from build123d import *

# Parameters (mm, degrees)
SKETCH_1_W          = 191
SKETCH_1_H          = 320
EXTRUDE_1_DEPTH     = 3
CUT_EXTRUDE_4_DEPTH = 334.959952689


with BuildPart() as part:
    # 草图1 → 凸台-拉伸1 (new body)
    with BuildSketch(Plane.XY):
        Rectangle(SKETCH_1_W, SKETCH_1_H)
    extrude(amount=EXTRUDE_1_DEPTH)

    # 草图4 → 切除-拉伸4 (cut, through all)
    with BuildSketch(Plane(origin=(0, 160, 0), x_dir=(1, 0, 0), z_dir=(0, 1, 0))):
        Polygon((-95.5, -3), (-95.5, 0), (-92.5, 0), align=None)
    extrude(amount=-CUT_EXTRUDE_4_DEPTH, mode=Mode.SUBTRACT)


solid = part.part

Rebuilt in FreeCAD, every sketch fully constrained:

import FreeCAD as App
import Part
import Sketcher
from FreeCAD import Vector
Q = App.Units.Quantity

doc = App.newDocument("Part")
body = doc.addObject("PartDesign::Body", "Body")

# Sketch on XY plane
sketch1 = doc.addObject("Sketcher::SketchObject", "Sketch")
body.addObject(sketch1)
sketch1.AttachmentSupport = (doc.XY_Plane, [""])
sketch1.MapMode = "FlatFace"
sketch1.addGeometry(Part.LineSegment(Vector(-96, 160, 0), Vector(-96, -160, 0)), False)
sketch1.addGeometry(Part.LineSegment(Vector(-96, -160, 0), Vector(96, -160, 0)), False)
sketch1.addGeometry(Part.LineSegment(Vector(96, -160, 0), Vector(96, 160, 0)), False)
sketch1.addGeometry(Part.LineSegment(Vector(96, 160, 0), Vector(-96, 160, 0)), False)
sketch1.addConstraint(Sketcher.Constraint("Coincident", 0, 2, 1, 1))
sketch1.addConstraint(Sketcher.Constraint("Coincident", 1, 2, 2, 1))
sketch1.addConstraint(Sketcher.Constraint("Coincident", 2, 2, 3, 1))
sketch1.addConstraint(Sketcher.Constraint("Coincident", 3, 2, 0, 1))
sketch1.addConstraint(Sketcher.Constraint("Vertical", 0))
sketch1.addConstraint(Sketcher.Constraint("Horizontal", 1))
sketch1.addConstraint(Sketcher.Constraint("Vertical", 2))
sketch1.addConstraint(Sketcher.Constraint("Horizontal", 3))
sketch1.addConstraint(Sketcher.Constraint("Symmetric", 0, 2, 2, 2, -1, 1))
sketch1.addConstraint(Sketcher.Constraint("DistanceX", 1, 1, 1, 2, Q("191 mm")))
sketch1.addConstraint(Sketcher.Constraint("DistanceY", 0, 2, 0, 1, Q("320 mm")))
pad1 = doc.addObject("PartDesign::Pad", "Pad")
body.addObject(pad1)
pad1.Profile = sketch1
pad1.Length = 3

# Sketch on XZ plane
sketch2 = doc.addObject("Sketcher::SketchObject", "Sketch001")
body.addObject(sketch2)
sketch2.AttachmentSupport = (doc.XZ_Plane, [""])
sketch2.MapMode = "FlatFace"
sketch2.AttachmentOffset = App.Placement(Vector(0, 0, -160), App.Rotation())
sketch2.addGeometry(Part.LineSegment(Vector(-95.5, 0, 0), Vector(-95.5, 3, 0)), False)
sketch2.addGeometry(Part.LineSegment(Vector(-95.5, 3, 0), Vector(-92.5, 0, 0)), False)
sketch2.addGeometry(Part.LineSegment(Vector(-92.5, 0, 0), Vector(-95.5, 0, 0)), False)
sketch2.addConstraint(Sketcher.Constraint("Coincident", 0, 2, 1, 1))
sketch2.addConstraint(Sketcher.Constraint("Coincident", 1, 2, 2, 1))
sketch2.addConstraint(Sketcher.Constraint("Coincident", 2, 2, 0, 1))
sketch2.addConstraint(Sketcher.Constraint("Vertical", 0))
sketch2.addConstraint(Sketcher.Constraint("Horizontal", 2))
sketch2.addConstraint(Sketcher.Constraint("PointOnObject", 1, 2, -1))
sketch2.addConstraint(Sketcher.Constraint("Equal", 2, 0))
sketch2.addConstraint(Sketcher.Constraint("DistanceX", 2, 2, 2, 1, Q("3 mm")))
sketch2.addConstraint(Sketcher.Constraint("DistanceX", 0, 2, -1, 1, Q("95.5 mm")))
pocket1 = doc.addObject("PartDesign::Pocket", "Pocket")
body.addObject(pocket1)
pocket1.Profile = sketch2
pocket1.Type = "ThroughAll"
pocket1.Reversed = True

doc.recompute()
